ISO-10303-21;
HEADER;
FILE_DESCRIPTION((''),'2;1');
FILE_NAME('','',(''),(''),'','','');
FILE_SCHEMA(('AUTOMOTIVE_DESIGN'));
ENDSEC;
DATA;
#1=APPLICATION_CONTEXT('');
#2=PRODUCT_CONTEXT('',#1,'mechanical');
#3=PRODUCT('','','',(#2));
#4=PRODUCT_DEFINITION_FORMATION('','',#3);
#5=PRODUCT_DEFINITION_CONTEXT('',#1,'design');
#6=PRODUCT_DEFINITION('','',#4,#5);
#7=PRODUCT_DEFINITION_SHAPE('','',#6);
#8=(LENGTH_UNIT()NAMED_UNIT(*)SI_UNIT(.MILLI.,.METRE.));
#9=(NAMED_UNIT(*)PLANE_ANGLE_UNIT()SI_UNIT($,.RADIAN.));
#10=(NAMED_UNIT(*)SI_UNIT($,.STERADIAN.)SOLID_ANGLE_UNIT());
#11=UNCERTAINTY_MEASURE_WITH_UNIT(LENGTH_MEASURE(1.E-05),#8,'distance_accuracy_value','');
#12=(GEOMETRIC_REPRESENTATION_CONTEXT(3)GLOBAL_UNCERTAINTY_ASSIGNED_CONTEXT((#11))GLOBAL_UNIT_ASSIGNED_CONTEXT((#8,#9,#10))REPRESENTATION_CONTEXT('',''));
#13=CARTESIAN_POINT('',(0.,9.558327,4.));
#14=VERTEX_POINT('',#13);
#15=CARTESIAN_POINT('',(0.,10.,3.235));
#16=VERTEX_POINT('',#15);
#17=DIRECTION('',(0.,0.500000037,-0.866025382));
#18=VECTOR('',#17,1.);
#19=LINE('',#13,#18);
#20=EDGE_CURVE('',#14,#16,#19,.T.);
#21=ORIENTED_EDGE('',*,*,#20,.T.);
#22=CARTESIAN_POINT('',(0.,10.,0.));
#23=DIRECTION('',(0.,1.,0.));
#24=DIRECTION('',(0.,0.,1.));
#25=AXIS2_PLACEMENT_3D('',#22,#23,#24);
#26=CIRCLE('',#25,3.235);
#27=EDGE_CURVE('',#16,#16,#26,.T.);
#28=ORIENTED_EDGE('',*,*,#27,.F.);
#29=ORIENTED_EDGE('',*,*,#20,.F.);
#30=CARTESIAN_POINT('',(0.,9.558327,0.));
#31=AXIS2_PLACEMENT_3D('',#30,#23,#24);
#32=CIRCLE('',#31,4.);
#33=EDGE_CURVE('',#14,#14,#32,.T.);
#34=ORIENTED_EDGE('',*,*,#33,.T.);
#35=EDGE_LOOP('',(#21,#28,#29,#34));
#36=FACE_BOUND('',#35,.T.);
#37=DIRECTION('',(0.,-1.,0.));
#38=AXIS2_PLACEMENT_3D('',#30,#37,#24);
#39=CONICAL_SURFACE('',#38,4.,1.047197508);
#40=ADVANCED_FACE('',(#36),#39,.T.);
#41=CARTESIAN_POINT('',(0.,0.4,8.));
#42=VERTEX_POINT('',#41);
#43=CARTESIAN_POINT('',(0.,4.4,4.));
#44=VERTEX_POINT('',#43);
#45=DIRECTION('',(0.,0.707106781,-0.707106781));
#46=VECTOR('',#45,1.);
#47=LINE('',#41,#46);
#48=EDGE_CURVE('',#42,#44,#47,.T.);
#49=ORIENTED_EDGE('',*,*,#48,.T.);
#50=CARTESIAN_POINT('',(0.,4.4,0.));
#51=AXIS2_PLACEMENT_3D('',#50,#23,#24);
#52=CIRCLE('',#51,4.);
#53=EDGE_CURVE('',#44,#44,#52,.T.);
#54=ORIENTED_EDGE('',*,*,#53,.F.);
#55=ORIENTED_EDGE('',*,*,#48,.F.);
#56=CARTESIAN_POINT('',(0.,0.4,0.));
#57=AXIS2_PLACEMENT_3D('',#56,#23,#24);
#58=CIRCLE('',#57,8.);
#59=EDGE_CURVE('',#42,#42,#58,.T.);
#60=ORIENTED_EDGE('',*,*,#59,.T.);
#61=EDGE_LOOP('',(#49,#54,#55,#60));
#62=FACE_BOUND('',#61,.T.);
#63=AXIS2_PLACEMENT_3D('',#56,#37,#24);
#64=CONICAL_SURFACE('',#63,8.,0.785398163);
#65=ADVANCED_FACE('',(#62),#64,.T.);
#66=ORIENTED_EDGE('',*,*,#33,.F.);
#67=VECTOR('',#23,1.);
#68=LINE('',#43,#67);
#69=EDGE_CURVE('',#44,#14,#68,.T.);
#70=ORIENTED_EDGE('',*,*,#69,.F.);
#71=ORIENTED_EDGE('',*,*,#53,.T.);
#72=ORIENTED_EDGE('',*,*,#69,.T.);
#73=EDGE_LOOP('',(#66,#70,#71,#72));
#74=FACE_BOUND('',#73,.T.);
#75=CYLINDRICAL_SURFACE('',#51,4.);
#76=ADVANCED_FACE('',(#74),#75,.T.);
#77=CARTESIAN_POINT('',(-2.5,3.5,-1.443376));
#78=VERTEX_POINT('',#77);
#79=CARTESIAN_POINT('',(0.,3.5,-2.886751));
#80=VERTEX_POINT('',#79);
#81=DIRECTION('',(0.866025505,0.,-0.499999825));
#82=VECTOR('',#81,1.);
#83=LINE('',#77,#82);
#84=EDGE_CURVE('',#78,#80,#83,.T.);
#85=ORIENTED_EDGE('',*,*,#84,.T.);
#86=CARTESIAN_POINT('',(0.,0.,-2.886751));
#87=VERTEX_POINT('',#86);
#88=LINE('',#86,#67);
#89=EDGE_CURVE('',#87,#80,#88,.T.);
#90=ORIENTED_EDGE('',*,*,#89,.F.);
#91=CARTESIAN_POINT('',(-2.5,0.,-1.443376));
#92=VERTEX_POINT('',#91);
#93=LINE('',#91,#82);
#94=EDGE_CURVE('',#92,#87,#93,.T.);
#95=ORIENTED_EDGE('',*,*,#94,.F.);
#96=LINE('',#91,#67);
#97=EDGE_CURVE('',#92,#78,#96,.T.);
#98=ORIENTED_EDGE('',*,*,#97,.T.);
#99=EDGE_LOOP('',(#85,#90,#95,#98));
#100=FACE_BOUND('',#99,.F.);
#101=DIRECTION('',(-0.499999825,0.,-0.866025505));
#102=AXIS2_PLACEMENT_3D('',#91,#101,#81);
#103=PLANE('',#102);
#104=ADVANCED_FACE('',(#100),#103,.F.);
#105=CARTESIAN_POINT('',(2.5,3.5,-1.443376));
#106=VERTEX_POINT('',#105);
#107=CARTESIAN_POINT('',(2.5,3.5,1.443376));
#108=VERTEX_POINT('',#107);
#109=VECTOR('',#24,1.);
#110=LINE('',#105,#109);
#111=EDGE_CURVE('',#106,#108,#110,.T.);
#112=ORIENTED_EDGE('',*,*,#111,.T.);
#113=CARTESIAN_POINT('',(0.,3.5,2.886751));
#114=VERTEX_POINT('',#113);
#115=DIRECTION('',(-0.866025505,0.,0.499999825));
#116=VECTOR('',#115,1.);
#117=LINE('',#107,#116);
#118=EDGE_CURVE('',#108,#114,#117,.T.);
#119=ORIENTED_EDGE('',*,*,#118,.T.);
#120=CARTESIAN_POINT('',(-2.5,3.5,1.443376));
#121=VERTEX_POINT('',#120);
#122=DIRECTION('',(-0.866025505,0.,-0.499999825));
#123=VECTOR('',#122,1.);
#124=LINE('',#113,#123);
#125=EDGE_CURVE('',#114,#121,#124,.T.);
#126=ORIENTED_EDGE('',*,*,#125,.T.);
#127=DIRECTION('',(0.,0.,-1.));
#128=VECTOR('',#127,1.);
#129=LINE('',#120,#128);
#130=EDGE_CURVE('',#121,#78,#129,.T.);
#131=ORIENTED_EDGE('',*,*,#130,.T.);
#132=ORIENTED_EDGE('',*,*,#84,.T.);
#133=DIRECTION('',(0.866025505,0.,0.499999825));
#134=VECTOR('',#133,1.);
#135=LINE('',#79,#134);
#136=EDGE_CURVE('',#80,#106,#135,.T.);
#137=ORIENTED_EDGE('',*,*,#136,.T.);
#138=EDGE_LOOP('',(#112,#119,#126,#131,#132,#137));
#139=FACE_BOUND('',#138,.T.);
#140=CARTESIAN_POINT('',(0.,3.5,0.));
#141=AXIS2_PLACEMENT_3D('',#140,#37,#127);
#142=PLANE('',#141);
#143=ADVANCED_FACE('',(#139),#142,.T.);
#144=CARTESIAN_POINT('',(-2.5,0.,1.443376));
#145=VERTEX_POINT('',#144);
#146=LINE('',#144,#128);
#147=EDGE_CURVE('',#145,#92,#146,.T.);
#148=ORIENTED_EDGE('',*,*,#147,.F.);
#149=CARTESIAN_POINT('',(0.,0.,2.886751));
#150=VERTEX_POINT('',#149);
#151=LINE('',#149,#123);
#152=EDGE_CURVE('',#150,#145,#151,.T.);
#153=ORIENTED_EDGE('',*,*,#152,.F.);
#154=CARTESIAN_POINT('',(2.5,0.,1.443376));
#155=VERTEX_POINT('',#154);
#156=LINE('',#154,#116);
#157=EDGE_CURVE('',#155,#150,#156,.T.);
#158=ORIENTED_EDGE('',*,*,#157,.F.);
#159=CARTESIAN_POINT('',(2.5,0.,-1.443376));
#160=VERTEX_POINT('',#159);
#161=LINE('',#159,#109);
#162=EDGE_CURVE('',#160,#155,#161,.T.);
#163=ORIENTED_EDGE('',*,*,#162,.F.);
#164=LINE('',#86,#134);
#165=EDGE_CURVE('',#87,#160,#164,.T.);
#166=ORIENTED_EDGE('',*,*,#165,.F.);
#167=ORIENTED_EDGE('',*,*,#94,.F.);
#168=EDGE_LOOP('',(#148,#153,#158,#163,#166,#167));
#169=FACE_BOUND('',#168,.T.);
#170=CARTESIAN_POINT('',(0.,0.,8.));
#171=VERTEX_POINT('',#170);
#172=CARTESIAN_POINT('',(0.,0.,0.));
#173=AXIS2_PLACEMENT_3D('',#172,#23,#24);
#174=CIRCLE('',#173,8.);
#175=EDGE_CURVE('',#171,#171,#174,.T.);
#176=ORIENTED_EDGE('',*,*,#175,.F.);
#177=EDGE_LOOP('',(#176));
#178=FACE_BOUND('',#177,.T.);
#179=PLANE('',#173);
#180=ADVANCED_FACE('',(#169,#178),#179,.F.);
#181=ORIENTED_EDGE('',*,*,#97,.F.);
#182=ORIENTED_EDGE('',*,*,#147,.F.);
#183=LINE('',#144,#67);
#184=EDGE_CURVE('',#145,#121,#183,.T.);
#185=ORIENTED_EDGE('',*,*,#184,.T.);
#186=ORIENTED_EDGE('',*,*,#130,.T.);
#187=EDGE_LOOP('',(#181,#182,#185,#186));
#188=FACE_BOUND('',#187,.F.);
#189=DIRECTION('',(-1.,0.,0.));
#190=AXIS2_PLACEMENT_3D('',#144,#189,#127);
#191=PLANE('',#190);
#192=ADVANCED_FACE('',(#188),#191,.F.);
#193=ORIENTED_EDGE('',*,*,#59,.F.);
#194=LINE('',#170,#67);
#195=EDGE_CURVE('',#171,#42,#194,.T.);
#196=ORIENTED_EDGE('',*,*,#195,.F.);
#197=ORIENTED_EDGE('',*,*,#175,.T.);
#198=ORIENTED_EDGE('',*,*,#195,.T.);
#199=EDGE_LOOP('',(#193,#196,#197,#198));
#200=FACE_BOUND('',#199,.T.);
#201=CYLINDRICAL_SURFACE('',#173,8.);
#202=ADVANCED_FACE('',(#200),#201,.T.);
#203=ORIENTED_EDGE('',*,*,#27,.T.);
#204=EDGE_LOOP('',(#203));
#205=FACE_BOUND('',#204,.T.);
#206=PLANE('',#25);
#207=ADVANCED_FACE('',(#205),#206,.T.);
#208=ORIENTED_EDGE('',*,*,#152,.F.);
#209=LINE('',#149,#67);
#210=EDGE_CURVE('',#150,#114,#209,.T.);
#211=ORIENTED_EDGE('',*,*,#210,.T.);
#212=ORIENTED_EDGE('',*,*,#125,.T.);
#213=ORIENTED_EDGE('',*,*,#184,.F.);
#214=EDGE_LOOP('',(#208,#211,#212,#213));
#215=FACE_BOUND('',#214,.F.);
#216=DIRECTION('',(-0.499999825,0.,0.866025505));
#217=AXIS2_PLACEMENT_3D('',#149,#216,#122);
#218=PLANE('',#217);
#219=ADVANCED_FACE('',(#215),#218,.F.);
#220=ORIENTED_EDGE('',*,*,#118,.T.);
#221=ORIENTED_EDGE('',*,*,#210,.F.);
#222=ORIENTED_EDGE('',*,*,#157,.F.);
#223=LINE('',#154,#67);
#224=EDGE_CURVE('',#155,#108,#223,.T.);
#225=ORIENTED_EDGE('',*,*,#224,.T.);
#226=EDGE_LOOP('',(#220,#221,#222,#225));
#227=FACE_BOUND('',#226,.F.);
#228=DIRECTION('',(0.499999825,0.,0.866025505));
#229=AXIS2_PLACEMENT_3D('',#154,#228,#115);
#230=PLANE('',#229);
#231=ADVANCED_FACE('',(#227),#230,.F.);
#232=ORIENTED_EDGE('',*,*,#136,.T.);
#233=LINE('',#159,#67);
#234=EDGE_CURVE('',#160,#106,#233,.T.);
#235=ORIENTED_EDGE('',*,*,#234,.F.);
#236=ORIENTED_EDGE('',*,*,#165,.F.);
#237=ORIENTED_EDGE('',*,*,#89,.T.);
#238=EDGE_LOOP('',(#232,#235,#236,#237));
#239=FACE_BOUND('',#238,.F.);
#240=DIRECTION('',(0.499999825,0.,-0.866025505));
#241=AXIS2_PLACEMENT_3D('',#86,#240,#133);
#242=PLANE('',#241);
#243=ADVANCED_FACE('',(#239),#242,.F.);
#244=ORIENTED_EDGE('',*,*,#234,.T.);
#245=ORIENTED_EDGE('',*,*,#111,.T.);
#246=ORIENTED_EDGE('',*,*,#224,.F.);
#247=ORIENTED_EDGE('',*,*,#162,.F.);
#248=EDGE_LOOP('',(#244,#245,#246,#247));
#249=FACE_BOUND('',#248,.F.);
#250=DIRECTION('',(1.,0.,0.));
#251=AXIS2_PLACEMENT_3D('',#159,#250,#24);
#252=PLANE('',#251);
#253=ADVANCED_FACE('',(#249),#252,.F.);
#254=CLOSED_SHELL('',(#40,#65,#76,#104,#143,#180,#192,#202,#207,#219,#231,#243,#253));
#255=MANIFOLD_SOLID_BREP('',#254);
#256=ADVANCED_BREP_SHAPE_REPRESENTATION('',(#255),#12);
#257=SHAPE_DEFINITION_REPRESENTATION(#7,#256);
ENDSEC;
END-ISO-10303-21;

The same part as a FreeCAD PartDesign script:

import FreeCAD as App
import Part
import Sketcher
from FreeCAD import Vector
Q = App.Units.Quantity

doc = App.newDocument("Part")
body = doc.addObject("PartDesign::Body", "Body")

sketch1 = body.newObject("Sketcher::SketchObject", "Sketch")
sketch1.AttachmentSupport = (doc.getObject("YZ_Plane"), [""])
sketch1.MapMode = "FlatFace"
sketch1.addGeometry([
    Part.LineSegment(Vector(0, 8, 0), Vector(0, 0, 0)),
    Part.LineSegment(Vector(0, 0, 0), Vector(10, 0, 0)),
    Part.LineSegment(Vector(10, 0, 0), Vector(10, 3.23, 0)),
    Part.LineSegment(Vector(10, 3.23, 0), Vector(9.56, 4, 0)),
    Part.LineSegment(Vector(9.56, 4, 0), Vector(4.4, 4, 0)),
    Part.LineSegment(Vector(4.4, 4, 0), Vector(0.4, 8, 0)),
    Part.LineSegment(Vector(0.4, 8, 0), Vector(0, 8, 0)),
], False)
sketch1.addConstraint([
    Sketcher.Constraint("Coincident", 0, 2, 1, 1),
    Sketcher.Constraint("Coincident", 1, 2, 2, 1),
    Sketcher.Constraint("Coincident", 2, 2, 3, 1),
    Sketcher.Constraint("Coincident", 3, 2, 4, 1),
    Sketcher.Constraint("Coincident", 4, 2, 5, 1),
    Sketcher.Constraint("Coincident", 5, 2, 6, 1),
    Sketcher.Constraint("Coincident", 6, 2, 0, 1),
    Sketcher.Constraint("Vertical", 0),
    Sketcher.Constraint("Horizontal", 1),
    Sketcher.Constraint("Vertical", 2),
    Sketcher.Constraint("Horizontal", 4),
    Sketcher.Constraint("Horizontal", 6),
    Sketcher.Constraint("Coincident", 0, 2, -1, 1),
    Sketcher.Constraint("DistanceX", 1, 1, 1, 2, 10.0),
    Sketcher.Constraint("DistanceY", 0, 2, 0, 1, 8.0),
    Sketcher.Constraint("Angle", 3, Q("120.000002 deg")),
    Sketcher.Constraint("Angle", 5, Q("135 deg")),
    Sketcher.Constraint("DistanceX", 6, 2, 6, 1, 0.4),
    Sketcher.Constraint("DistanceY", -1, 1, 3, 2, 4.0),
    Sketcher.Constraint("DistanceY", 2, 1, 2, 2, 3.235),
])
revolution = body.newObject("PartDesign::Revolution", "Revolution")
revolution.Profile = sketch1
revolution.ReferenceAxis = (sketch1, ["H_Axis"])
revolution.Angle = 360

sketch2 = body.newObject("Sketcher::SketchObject", "Sketch001")
sketch2.AttachmentSupport = (doc.getObject("XZ_Plane"), [""])
sketch2.MapMode = "FlatFace"
sketch2.addGeometry([
    Part.LineSegment(Vector(2.5, -1.4, 0), Vector(2.5, 1.4, 0)),
    Part.LineSegment(Vector(2.5, 1.4, 0), Vector(0, 2.9, 0)),
    Part.LineSegment(Vector(0, 2.9, 0), Vector(-2.5, 1.4, 0)),
    Part.LineSegment(Vector(-2.5, 1.4, 0), Vector(-2.5, -1.4, 0)),
    Part.LineSegment(Vector(-2.5, -1.4, 0), Vector(0, -2.9, 0)),
    Part.LineSegment(Vector(0, -2.9, 0), Vector(2.5, -1.4, 0)),
], False)
sketch2.addConstraint([
    Sketcher.Constraint("Coincident", 0, 2, 1, 1),
    Sketcher.Constraint("Coincident", 1, 2, 2, 1),
    Sketcher.Constraint("Coincident", 2, 2, 3, 1),
    Sketcher.Constraint("Coincident", 3, 2, 4, 1),
    Sketcher.Constraint("Coincident", 4, 2, 5, 1),
    Sketcher.Constraint("Coincident", 5, 2, 0, 1),
    Sketcher.Constraint("Vertical", 0),
    Sketcher.Constraint("Vertical", 3),
    Sketcher.Constraint("Symmetric", 0, 2, 3, 2, -1, 1),
    Sketcher.Constraint("Symmetric", 1, 2, 4, 2, -1, 1),
    Sketcher.Constraint("PointOnObject", 1, 2, -2),
    Sketcher.Constraint("Parallel", 2, 5),
    Sketcher.Constraint("Horizontal", 0, 2, 2, 2),
    Sketcher.Constraint("Angle", 1, Q("150.000012 deg")),
    Sketcher.Constraint("DistanceX", 2, 2, 0, 2, 5.0),
    Sketcher.Constraint("DistanceY", 0, 1, 0, 2, 2.886752),
])
pocket1 = body.newObject("PartDesign::Pocket", "Pocket")
pocket1.Profile = sketch2
pocket1.Length = 3.5

doc.recompute()
